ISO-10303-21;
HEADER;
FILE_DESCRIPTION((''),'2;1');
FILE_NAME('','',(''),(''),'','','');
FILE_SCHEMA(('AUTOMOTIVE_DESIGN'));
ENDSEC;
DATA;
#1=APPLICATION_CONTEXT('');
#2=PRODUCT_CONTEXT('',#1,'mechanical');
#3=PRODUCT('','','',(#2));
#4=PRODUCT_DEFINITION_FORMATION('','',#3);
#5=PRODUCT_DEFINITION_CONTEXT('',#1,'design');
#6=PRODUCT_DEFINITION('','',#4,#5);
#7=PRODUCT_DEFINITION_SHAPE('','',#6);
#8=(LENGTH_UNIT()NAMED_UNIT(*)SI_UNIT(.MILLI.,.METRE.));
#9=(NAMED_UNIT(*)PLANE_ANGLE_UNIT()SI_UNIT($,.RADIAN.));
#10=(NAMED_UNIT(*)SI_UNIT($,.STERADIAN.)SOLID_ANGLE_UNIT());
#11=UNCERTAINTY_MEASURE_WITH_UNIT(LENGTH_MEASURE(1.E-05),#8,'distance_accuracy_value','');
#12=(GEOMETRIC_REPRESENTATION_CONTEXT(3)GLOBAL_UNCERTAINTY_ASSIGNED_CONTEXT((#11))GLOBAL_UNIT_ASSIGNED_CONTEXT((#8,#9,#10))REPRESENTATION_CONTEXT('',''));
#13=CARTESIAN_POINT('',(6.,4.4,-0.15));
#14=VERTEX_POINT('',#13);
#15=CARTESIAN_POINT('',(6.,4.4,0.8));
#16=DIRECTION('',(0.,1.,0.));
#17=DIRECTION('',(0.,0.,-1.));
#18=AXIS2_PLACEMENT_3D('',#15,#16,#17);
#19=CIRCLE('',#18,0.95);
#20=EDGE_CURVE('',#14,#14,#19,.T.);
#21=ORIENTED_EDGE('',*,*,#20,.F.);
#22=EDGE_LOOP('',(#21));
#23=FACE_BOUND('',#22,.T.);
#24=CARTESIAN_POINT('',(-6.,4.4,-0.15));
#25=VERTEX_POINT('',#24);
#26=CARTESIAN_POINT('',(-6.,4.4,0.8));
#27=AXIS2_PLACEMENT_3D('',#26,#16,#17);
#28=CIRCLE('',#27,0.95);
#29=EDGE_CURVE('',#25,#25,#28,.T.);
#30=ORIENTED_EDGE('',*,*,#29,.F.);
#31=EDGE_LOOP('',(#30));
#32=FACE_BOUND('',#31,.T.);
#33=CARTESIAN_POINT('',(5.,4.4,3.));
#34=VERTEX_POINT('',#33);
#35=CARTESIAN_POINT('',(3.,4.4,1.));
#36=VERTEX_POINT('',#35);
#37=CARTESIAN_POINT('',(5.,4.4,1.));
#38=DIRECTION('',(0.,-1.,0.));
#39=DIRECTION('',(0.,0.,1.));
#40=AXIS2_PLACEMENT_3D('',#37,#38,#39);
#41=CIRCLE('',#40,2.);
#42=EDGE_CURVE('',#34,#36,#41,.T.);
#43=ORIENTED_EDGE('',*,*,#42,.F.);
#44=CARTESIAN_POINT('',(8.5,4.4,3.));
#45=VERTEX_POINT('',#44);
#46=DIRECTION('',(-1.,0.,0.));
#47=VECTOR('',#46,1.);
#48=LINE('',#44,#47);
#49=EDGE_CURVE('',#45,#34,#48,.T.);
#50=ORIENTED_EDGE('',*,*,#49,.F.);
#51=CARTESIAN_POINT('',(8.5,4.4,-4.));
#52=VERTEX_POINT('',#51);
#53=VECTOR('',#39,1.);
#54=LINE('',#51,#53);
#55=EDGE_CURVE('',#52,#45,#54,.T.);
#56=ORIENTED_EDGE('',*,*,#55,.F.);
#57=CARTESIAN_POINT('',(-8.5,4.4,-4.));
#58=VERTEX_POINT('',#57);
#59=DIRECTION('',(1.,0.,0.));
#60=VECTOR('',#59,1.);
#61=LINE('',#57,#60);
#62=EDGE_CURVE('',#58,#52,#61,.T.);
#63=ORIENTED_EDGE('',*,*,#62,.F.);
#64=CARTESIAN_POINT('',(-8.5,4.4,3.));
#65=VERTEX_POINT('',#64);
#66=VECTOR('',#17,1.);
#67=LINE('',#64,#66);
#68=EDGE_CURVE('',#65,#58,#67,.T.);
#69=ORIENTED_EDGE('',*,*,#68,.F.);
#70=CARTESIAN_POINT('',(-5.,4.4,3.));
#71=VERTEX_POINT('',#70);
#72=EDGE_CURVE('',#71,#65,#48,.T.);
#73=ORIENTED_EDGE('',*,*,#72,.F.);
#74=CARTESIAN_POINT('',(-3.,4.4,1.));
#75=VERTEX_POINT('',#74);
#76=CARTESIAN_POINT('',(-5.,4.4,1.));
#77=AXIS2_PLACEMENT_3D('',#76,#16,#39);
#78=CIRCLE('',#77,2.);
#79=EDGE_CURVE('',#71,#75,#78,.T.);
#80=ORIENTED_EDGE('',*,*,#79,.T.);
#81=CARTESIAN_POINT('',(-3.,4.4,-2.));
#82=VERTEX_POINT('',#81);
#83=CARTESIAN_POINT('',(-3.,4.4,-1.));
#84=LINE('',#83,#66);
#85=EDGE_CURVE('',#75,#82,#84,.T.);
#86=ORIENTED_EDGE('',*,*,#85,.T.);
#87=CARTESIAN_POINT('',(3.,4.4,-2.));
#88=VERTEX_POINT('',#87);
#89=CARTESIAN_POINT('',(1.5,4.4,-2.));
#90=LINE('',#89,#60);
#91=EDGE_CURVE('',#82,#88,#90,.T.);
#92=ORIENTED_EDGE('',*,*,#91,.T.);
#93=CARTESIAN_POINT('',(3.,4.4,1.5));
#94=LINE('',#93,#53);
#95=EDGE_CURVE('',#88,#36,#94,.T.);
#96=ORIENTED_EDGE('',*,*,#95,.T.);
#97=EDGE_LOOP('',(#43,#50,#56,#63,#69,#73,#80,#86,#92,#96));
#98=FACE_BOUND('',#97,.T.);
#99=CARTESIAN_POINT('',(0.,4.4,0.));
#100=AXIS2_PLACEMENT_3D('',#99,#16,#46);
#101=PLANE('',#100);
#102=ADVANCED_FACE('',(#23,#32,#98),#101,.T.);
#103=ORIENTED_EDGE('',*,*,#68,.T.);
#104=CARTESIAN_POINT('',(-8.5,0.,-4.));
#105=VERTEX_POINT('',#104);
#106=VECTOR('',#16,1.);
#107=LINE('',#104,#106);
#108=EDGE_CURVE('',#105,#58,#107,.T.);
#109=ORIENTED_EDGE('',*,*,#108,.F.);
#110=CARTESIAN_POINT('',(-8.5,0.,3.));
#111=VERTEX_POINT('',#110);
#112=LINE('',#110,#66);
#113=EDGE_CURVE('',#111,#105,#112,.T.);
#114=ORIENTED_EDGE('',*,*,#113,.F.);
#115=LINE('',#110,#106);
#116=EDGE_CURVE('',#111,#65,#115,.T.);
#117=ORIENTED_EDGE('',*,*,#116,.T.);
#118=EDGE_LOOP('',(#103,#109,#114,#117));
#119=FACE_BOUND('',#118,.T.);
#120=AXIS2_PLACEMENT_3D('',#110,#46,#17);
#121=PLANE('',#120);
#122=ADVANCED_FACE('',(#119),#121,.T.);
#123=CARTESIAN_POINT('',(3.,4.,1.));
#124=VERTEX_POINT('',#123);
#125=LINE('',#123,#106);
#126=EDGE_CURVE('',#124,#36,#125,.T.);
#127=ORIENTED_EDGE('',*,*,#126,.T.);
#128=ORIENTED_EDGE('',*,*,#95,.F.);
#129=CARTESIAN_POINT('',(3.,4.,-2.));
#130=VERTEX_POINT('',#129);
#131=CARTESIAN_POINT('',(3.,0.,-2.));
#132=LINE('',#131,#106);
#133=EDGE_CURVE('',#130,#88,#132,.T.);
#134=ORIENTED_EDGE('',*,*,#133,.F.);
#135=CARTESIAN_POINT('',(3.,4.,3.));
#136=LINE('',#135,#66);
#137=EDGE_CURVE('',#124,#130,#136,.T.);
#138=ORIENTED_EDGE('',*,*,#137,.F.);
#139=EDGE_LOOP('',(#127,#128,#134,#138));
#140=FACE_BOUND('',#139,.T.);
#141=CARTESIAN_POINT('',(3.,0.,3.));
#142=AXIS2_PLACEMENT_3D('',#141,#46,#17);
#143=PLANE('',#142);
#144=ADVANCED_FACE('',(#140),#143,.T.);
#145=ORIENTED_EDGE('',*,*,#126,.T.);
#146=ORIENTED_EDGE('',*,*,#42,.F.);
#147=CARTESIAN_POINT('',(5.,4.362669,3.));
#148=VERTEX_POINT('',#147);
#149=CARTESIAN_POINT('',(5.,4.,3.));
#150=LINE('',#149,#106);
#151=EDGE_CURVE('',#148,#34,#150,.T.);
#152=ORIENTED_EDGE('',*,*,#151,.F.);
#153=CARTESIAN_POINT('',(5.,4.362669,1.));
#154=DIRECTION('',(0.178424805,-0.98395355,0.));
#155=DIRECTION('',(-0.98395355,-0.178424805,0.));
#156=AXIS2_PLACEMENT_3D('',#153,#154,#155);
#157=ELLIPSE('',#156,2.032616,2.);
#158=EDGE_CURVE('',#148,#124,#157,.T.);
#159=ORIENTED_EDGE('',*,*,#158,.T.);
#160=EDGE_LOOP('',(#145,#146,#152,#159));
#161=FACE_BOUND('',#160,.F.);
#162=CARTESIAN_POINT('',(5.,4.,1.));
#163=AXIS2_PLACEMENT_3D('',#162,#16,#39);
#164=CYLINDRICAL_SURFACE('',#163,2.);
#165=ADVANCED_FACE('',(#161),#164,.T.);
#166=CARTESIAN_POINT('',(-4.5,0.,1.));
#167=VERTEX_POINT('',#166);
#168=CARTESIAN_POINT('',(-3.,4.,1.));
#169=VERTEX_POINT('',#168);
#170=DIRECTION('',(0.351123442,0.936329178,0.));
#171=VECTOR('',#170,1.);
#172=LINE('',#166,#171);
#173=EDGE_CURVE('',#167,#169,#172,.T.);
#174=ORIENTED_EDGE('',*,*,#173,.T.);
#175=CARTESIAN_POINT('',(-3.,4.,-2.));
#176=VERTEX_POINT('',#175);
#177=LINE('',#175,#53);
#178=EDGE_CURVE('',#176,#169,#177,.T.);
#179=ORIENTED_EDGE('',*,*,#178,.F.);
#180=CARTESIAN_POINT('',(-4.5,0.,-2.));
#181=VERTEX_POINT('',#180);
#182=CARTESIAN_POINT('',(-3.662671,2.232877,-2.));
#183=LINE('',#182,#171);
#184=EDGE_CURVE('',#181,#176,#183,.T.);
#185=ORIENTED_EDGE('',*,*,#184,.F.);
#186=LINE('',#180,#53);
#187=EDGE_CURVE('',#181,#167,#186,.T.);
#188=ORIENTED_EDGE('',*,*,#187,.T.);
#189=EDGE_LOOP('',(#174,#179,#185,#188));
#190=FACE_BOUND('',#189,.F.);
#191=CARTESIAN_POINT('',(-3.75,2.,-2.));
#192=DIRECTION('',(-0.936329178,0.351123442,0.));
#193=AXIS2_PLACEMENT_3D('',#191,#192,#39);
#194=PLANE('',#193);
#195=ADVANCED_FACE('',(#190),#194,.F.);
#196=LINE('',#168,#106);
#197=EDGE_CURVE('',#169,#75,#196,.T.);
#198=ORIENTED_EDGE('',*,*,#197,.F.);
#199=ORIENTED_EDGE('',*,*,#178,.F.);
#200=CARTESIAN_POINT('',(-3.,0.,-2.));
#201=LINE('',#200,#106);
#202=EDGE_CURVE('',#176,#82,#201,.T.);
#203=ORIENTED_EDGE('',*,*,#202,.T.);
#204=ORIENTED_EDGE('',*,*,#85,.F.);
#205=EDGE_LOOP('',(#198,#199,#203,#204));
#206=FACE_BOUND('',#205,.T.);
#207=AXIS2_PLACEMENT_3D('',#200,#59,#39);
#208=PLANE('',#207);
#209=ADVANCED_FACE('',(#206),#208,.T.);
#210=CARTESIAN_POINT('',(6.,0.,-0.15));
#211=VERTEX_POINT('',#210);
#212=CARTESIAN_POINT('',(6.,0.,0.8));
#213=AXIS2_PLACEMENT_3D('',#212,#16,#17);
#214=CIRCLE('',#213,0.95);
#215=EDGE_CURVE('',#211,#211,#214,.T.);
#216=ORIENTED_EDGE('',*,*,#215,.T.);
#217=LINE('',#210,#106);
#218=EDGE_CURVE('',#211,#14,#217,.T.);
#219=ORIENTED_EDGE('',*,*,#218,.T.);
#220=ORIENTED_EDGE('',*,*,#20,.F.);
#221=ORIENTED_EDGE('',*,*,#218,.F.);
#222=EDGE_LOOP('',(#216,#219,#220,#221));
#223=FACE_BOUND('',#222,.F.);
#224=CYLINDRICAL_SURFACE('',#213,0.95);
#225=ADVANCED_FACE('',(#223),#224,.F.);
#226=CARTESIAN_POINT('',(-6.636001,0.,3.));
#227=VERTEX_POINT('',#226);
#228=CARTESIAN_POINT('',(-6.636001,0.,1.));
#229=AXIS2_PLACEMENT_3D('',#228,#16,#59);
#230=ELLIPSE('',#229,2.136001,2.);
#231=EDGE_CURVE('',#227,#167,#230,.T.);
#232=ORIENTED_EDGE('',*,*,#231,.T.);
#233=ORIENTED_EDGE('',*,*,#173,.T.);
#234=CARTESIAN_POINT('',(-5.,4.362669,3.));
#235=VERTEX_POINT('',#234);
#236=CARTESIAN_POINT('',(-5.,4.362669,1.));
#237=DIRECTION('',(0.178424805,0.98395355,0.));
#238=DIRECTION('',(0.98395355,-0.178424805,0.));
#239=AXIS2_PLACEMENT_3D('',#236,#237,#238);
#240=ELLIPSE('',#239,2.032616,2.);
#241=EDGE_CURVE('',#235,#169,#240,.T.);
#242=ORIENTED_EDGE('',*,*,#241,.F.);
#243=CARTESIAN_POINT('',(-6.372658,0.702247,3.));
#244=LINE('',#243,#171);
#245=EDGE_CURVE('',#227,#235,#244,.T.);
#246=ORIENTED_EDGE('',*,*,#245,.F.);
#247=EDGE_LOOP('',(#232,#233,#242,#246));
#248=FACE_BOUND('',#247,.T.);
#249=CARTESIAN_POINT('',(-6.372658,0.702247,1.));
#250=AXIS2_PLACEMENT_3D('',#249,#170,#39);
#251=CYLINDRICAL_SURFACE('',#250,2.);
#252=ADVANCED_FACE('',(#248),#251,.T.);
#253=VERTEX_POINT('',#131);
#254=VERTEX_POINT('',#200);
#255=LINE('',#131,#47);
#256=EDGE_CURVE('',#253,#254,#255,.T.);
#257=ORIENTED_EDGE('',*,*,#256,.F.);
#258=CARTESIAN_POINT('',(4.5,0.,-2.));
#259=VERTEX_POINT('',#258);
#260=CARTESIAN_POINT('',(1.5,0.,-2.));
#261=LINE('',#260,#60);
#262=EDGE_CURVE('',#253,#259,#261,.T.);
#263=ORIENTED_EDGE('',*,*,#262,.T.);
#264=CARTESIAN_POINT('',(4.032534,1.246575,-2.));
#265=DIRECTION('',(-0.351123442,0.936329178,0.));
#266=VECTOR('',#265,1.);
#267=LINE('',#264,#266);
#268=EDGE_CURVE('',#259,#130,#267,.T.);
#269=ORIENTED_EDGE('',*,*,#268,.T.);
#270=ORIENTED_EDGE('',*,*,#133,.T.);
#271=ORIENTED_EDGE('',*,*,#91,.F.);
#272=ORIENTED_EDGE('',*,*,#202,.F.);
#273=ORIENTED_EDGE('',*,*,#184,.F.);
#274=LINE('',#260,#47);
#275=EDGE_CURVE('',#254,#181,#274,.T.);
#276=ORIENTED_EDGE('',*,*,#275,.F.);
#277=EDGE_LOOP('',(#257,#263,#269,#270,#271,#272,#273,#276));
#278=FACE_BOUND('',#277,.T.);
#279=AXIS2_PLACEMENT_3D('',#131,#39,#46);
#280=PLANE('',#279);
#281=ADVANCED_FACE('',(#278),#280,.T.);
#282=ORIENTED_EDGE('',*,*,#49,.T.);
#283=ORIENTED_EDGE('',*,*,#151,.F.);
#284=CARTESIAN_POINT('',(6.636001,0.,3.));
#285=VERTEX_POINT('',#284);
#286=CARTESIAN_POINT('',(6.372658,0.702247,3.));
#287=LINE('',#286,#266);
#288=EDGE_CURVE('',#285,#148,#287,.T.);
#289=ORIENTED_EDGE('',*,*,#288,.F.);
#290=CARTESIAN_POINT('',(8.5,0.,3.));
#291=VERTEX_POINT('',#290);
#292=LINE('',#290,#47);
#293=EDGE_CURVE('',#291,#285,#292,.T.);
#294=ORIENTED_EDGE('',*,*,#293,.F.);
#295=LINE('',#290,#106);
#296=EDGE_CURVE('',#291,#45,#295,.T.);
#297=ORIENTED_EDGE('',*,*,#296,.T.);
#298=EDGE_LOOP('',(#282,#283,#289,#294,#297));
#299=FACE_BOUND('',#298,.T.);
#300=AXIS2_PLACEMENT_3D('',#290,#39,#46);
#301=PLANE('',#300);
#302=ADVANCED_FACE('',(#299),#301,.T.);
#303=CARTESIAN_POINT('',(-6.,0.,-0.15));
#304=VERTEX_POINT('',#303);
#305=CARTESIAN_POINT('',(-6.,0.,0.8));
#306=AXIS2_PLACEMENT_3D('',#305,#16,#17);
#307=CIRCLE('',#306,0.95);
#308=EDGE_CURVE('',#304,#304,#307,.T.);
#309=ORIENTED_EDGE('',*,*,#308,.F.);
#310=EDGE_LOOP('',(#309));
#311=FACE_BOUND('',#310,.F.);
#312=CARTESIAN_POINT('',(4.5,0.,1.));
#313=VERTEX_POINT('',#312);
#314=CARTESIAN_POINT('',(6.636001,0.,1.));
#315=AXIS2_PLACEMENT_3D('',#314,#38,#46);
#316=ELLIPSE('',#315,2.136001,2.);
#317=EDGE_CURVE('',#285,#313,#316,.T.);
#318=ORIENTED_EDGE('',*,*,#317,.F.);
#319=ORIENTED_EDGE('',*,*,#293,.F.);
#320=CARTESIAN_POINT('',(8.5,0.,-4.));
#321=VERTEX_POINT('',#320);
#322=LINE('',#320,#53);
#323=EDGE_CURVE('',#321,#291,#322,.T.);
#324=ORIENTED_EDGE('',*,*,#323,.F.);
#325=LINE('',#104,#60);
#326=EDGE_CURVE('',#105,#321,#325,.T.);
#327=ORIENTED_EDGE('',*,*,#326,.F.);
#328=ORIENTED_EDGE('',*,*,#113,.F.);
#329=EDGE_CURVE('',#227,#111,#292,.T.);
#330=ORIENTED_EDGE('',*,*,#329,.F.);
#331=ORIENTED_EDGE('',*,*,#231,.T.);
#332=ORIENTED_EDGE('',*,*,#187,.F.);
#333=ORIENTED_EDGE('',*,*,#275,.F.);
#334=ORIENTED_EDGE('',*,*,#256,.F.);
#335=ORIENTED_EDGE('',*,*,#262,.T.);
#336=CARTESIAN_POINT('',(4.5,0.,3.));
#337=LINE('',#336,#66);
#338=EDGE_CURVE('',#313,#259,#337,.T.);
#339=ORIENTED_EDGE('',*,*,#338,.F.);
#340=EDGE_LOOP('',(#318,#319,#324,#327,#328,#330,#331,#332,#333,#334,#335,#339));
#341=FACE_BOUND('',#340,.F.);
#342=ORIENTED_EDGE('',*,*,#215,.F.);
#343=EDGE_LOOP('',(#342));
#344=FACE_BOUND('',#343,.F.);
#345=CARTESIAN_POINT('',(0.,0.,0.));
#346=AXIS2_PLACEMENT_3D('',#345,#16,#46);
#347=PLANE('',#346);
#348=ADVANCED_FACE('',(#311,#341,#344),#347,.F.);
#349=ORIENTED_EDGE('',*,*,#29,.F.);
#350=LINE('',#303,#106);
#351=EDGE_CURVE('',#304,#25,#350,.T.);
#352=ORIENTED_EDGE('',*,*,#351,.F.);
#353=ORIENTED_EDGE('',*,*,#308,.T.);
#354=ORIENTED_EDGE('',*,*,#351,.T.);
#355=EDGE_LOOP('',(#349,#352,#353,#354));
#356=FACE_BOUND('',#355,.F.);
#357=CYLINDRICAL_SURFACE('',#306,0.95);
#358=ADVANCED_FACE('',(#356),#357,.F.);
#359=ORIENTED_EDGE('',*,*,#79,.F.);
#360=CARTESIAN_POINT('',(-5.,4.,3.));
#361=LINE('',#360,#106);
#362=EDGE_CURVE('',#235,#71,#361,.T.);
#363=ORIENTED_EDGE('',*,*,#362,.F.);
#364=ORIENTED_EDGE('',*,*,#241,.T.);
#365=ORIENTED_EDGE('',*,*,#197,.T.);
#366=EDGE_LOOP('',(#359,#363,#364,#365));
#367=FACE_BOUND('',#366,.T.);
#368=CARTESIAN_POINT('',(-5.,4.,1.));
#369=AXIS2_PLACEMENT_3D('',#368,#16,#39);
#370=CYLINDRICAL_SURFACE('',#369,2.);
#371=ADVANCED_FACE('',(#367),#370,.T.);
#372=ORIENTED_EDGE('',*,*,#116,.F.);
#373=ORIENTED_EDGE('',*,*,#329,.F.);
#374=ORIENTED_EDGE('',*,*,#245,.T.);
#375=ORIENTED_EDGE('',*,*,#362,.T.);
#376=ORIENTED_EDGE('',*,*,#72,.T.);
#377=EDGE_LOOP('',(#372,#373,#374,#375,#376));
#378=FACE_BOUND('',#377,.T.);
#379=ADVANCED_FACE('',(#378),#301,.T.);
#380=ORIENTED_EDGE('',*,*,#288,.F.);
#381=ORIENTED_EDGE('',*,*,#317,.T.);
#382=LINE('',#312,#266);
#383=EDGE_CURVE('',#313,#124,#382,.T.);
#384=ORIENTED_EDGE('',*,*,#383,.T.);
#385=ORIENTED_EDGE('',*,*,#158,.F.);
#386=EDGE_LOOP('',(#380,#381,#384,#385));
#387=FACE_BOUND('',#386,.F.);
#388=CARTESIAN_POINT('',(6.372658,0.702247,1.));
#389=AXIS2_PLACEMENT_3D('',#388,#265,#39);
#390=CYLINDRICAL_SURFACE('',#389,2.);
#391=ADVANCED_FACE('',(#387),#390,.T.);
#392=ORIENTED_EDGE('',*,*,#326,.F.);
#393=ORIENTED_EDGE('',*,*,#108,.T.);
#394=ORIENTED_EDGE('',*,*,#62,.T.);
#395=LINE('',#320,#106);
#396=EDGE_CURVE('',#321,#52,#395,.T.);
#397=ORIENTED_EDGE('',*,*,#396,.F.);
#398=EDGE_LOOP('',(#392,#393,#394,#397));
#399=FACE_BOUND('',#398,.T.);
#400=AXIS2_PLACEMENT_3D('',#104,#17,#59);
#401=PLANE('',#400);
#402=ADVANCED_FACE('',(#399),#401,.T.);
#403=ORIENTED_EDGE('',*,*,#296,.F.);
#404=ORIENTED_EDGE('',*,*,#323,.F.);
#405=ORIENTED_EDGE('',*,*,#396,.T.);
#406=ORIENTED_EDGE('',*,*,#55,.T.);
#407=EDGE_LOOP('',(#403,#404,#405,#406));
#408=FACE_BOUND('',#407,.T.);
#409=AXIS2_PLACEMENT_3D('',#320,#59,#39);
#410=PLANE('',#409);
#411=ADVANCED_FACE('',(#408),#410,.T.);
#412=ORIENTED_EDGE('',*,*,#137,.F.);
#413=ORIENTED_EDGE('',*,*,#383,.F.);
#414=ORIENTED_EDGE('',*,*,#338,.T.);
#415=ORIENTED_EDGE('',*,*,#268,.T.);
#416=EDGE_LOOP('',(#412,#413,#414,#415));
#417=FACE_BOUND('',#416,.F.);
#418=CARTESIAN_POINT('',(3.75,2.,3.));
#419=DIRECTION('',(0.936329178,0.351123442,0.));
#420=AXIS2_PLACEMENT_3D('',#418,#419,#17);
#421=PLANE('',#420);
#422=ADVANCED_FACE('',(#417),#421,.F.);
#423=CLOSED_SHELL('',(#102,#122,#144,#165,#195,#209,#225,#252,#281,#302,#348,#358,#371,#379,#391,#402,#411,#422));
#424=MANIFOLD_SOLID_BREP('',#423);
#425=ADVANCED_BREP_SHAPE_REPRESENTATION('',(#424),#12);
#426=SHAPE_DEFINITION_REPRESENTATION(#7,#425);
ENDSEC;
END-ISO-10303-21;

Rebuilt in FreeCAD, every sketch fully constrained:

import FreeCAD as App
import Part
import Sketcher


def edges_at(feature, points):
    """Names of the edges that pass closest to the given points."""
    edges = feature.Shape.Edges
    near = lambda p: min(range(len(edges)), key=lambda i: edges[i].distToShape(Part.Vertex(*p))[0])
    return sorted({f"Edge{near(p) + 1}" for p in points})

doc = App.newDocument("Part")
params = doc.addObject("Spreadsheet::Sheet", "Params")
for row, (alias, value) in enumerate([
    ("sketch1_width", "17 mm"),
    ("sketch1_height", "7 mm"),
    ("pad1_length", "4.4 mm"),
    ("sketch2_diameter", "1.9 mm"),
    ("hole_diameter", "1.9 mm"),
    ("sketch3_width", "6 mm"),
    ("sketch3_height", "5 mm"),
    ("chamfer_size", "1.5 mm"),
    ("chamfer_size2", "4 mm"),
    ("chamfer2_size", "1.5 mm"),
    ("chamfer2_size2", "4 mm"),
    ("fillet_radius", "2 mm"),
], start=1):
    params.set(f"A{row}", alias)
    params.set(f"B{row}", "=" + value)
    params.setAlias(f"B{row}", alias)

body = doc.addObject("PartDesign::Body", "Body")

sketch1 = doc.addObject("Sketcher::SketchObject", "Sketch")
body.addObject(sketch1)
sketch1.AttachmentSupport = (doc.XZ_Plane, [""])
sketch1.MapMode = "FlatFace"
sketch1.addGeometry([
    Part.LineSegment(App.Vector(8.5, -4, 0), App.Vector(-8.5, -4, 0)),
    Part.LineSegment(App.Vector(-8.5, -4, 0), App.Vector(-8.5, 3, 0)),
    Part.LineSegment(App.Vector(-8.5, 3, 0), App.Vector(8.5, 3, 0)),
    Part.LineSegment(App.Vector(8.5, 3, 0), App.Vector(8.5, -4, 0)),
], False)
sketch1.addConstraint([
    Sketcher.Constraint("Coincident", 0, 2, 1, 1),
    Sketcher.Constraint("Coincident", 1, 2, 2, 1),
    Sketcher.Constraint("Coincident", 2, 2, 3, 1),
    Sketcher.Constraint("Coincident", 3, 2, 0, 1),
    Sketcher.Constraint("Horizontal", 0),
    Sketcher.Constraint("Vertical", 1),
    Sketcher.Constraint("Horizontal", 2),
    Sketcher.Constraint("Vertical", 3),
    Sketcher.Constraint("DistanceX", 0, 2, 0, 1, 17.0),
    Sketcher.Constraint("DistanceY", 1, 1, 1, 2, 7.0),
    Sketcher.Constraint("DistanceY", -1, 1, 1, 2, 3.0),
    Sketcher.Constraint("DistanceX", 0, 2, -1, 1, 8.5),
])
sketch1.setExpression("Constraints[8]", "Params.sketch1_width")
sketch1.setExpression("Constraints[9]", "Params.sketch1_height")
pad1 = doc.addObject("PartDesign::Pad", "Pad")
body.addObject(pad1)
pad1.Profile = sketch1
pad1.setExpression("Length", "Params.pad1_length")
pad1.Reversed = True

sketch2 = doc.addObject("Sketcher::SketchObject", "Sketch001")
body.addObject(sketch2)
sketch2.AttachmentSupport = (doc.XZ_Plane, [""])
sketch2.MapMode = "FlatFace"
sketch2.addGeometry([
    Part.Circle(App.Vector(-6, 0.8, 0), App.Vector(0, 0, 1), 0.95),
    Part.Circle(App.Vector(6, 0.8, 0), App.Vector(0, 0, 1), 0.95),
], False)
sketch2.addConstraint([
    Sketcher.Constraint("Equal", 0, 1),
    Sketcher.Constraint("Symmetric", 0, 3, 1, 3, -2),
    Sketcher.Constraint("Diameter", 0, 1.9),
    Sketcher.Constraint("DistanceX", 0, 3, -1, 1, 6.0),
    Sketcher.Constraint("DistanceY", -1, 1, 0, 3, 0.8),
])
sketch2.setExpression("Constraints[2]", "Params.sketch2_diameter")
doc.recompute()
hole = doc.addObject("PartDesign::Hole", "Hole")
body.addObject(hole)
hole.Profile = sketch2
hole.ThreadType = "None"
hole.setExpression("Diameter", "Params.hole_diameter")
hole.DepthType = "ThroughAll"

sketch3 = doc.addObject("Sketcher::SketchObject", "Sketch002")
body.addObject(sketch3)
sketch3.AttachmentSupport = (doc.XZ_Plane, [""])
sketch3.MapMode = "FlatFace"
sketch3.addGeometry([
    Part.LineSegment(App.Vector(3, -2, 0), App.Vector(3, 3, 0)),
    Part.LineSegment(App.Vector(3, 3, 0), App.Vector(-3, 3, 0)),
    Part.LineSegment(App.Vector(-3, 3, 0), App.Vector(-3, -2, 0)),
    Part.LineSegment(App.Vector(-3, -2, 0), App.Vector(3, -2, 0)),
], False)
sketch3.addConstraint([
    Sketcher.Constraint("Coincident", 0, 2, 1, 1),
    Sketcher.Constraint("Coincident", 1, 2, 2, 1),
    Sketcher.Constraint("Coincident", 2, 2, 3, 1),
    Sketcher.Constraint("Coincident", 3, 2, 0, 1),
    Sketcher.Constraint("Vertical", 0),
    Sketcher.Constraint("Horizontal", 1),
    Sketcher.Constraint("Vertical", 2),
    Sketcher.Constraint("Horizontal", 3),
    Sketcher.Constraint("DistanceX", 1, 2, 1, 1, 6.0),
    Sketcher.Constraint("DistanceY", 2, 2, -1, 1, 2.0),
    Sketcher.Constraint("DistanceY", 0, 1, 0, 2, 5.0),
    Sketcher.Constraint("DistanceX", -1, 1, 0, 2, 3.0),
])
sketch3.setExpression("Constraints[8]", "Params.sketch3_width")
sketch3.setExpression("Constraints[10]", "Params.sketch3_height")
pocket1 = doc.addObject("PartDesign::Pocket", "Pocket")
body.addObject(pocket1)
pocket1.Profile = sketch3
pocket1.Type = "ThroughAll"
doc.recompute()

chamfer = doc.addObject("PartDesign::Chamfer", "Chamfer")
body.addObject(chamfer)
chamfer.Base = (pocket1, edges_at(pocket1, [(-3, 0, 0.5)]))
chamfer.ChamferType = "Two distances"
chamfer.setExpression("Size", "Params.chamfer_size")
chamfer.setExpression("Size2", "Params.chamfer_size2")
doc.recompute()

chamfer2 = doc.addObject("PartDesign::Chamfer", "Chamfer001")
body.addObject(chamfer2)
chamfer2.Base = (chamfer, edges_at(chamfer, [(3, 0, 0.5)]))
chamfer2.ChamferType = "Two distances"
chamfer2.setExpression("Size", "Params.chamfer2_size")
chamfer2.setExpression("Size2", "Params.chamfer2_size2")
doc.recompute()

fillet = doc.addObject("PartDesign::Fillet", "Fillet")
body.addObject(fillet)
fillet.Base = (chamfer2, edges_at(chamfer2, [
    (-3.75, 2, 3),
    (-3, 4.2, 3),
    (3.75, 2, 3),
    (3, 4.2, 3),
]))
fillet.setExpression("Radius", "Params.fillet_radius")

doc.recompute()
